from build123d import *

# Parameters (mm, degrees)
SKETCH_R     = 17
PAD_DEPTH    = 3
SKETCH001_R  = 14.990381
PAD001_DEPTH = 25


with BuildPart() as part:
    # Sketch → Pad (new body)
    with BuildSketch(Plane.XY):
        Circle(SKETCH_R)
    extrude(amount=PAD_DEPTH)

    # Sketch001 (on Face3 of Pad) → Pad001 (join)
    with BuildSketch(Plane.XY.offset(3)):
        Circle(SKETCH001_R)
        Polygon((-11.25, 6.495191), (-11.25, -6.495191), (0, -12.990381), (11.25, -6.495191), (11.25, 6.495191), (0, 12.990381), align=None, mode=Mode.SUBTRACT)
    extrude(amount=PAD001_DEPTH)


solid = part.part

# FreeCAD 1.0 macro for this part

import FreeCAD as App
import Part
import Sketcher

V = App.Vector
Q = App.Units.Quantity

doc = App.newDocument("Part")
body = doc.addObject("PartDesign::Body", "Body")

sketch1 = body.newObject("Sketcher::SketchObject", "Sketch")
sketch1.AttachmentSupport = (doc.getObject("XY_Plane"), [""])
sketch1.MapMode = "FlatFace"
sketch1.addGeometry(Part.Circle(V(0, 0, 0), V(0, 0, 1), 17), False)
sketch1.addConstraint(Sketcher.Constraint("Coincident", 0, 3, -1, 1))
sketch1.addConstraint(Sketcher.Constraint("Diameter", 0, Q("34 mm")))
pad1 = body.newObject("PartDesign::Pad", "Pad")
pad1.Profile = sketch1
pad1.Length = 3

sketch2 = body.newObject("Sketcher::SketchObject", "Sketch001")
sketch2.AttachmentSupport = (doc.getObject("XY_Plane"), [""])
sketch2.MapMode = "FlatFace"
sketch2.AttachmentOffset = App.Placement(V(0, 0, 3), App.Rotation())
sketch2.addGeometry(Part.Circle(V(0, 0, 0), V(0, 0, 1), 14.990381), False)
sketch2.addGeometry(Part.LineSegment(V(-11.25, -6.495191, 0), V(-11.25, 6.495191, 0)), False)
sketch2.addGeometry(Part.LineSegment(V(-11.25, 6.495191, 0), V(0, 12.990381, 0)), False)
sketch2.addGeometry(Part.LineSegment(V(0, 12.990381, 0), V(11.25, 6.495191, 0)), False)
sketch2.addGeometry(Part.LineSegment(V(11.25, 6.495191, 0), V(11.25, -6.495191, 0)), False)
sketch2.addGeometry(Part.LineSegment(V(11.25, -6.495191, 0), V(0, -12.990381, 0)), False)
sketch2.addGeometry(Part.LineSegment(V(0, -12.990381, 0), V(-11.25, -6.495191, 0)), False)
sketch2.addConstraint(Sketcher.Constraint("Coincident", 1, 2, 2, 1))
sketch2.addConstraint(Sketcher.Constraint("Coincident", 2, 2, 3, 1))
sketch2.addConstraint(Sketcher.Constraint("Coincident", 3, 2, 4, 1))
sketch2.addConstraint(Sketcher.Constraint("Coincident", 4, 2, 5, 1))
sketch2.addConstraint(Sketcher.Constraint("Coincident", 5, 2, 6, 1))
sketch2.addConstraint(Sketcher.Constraint("Coincident", 6, 2, 1, 1))
sketch2.addConstraint(Sketcher.Constraint("Vertical", 1))
sketch2.addConstraint(Sketcher.Constraint("Vertical", 4))
sketch2.addConstraint(Sketcher.Constraint("Coincident", 0, 3, -1, 1))
sketch2.addConstraint(Sketcher.Constraint("Symmetric", 1, 2, 4, 2, -1, 1))
sketch2.addConstraint(Sketcher.Constraint("Symmetric", 2, 2, 5, 2, -1, 1))
sketch2.addConstraint(Sketcher.Constraint("PointOnObject", 2, 2, -2))
sketch2.addConstraint(Sketcher.Constraint("Parallel", 3, 6))
sketch2.addConstraint(Sketcher.Constraint("Horizontal", 1, 2, 3, 2))
sketch2.addConstraint(Sketcher.Constraint("Angle", 2, Q("29.999998 deg")))
sketch2.addConstraint(Sketcher.Constraint("DistanceX", 1, 2, 3, 2, Q("22.5 mm")))
sketch2.addConstraint(Sketcher.Constraint("Diameter", 0, Q("29.980762 mm")))
sketch2.addConstraint(Sketcher.Constraint("DistanceY", 1, 1, 1, 2, Q("12.990382 mm")))
pad2 = body.newObject("PartDesign::Pad", "Pad001")
pad2.Profile = sketch2
pad2.Length = 25

doc.recompute()
